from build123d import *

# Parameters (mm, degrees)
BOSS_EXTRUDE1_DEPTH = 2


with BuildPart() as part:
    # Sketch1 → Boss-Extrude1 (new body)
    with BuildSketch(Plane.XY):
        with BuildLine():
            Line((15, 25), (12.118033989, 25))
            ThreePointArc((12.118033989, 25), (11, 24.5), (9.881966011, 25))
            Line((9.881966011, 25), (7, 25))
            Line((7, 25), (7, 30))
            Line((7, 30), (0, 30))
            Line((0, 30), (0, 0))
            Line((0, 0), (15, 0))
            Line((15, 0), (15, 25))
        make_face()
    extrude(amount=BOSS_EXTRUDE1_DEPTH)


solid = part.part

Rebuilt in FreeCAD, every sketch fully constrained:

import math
import FreeCAD as App
import Part
import Sketcher

V = App.Vector
Q = App.Units.Quantity

doc = App.newDocument("Part")
body = doc.addObject("PartDesign::Body", "Body")

sketch1 = body.newObject("Sketcher::SketchObject", "Sketch")
sketch1.AttachmentSupport = (doc.getObject("XY_Plane"), [""])
sketch1.MapMode = "FlatFace"
sketch1.addGeometry(Part.LineSegment(V(15, 25, 0), V(12.118034, 25, 0)), False)
sketch1.addGeometry(Part.ArcOfCircle(Part.Circle(V(11, 26, 0), V(0, 0, 1), 1.5), math.radians(-138.189685), math.radians(-41.810315)), False)
sketch1.addGeometry(Part.LineSegment(V(9.881966, 25, 0), V(7, 25, 0)), False)
sketch1.addGeometry(Part.LineSegment(V(7, 25, 0), V(7, 30, 0)), False)
sketch1.addGeometry(Part.LineSegment(V(7, 30, 0), V(0, 30, 0)), False)
sketch1.addGeometry(Part.LineSegment(V(0, 30, 0), V(0, 0, 0)), False)
sketch1.addGeometry(Part.LineSegment(V(0, 0, 0), V(15, 0, 0)), False)
sketch1.addGeometry(Part.LineSegment(V(15, 0, 0), V(15, 25, 0)), False)
sketch1.addConstraint(Sketcher.Constraint("Coincident", 0, 2, 1, 2))
sketch1.addConstraint(Sketcher.Constraint("Coincident", 1, 1, 2, 1))
sketch1.addConstraint(Sketcher.Constraint("Coincident", 2, 2, 3, 1))
sketch1.addConstraint(Sketcher.Constraint("Coincident", 3, 2, 4, 1))
sketch1.addConstraint(Sketcher.Constraint("Coincident", 4, 2, 5, 1))
sketch1.addConstraint(Sketcher.Constraint("Coincident", 5, 2, 6, 1))
sketch1.addConstraint(Sketcher.Constraint("Coincident", 6, 2, 7, 1))
sketch1.addConstraint(Sketcher.Constraint("Coincident", 7, 2, 0, 1))
sketch1.addConstraint(Sketcher.Constraint("Horizontal", 0))
sketch1.addConstraint(Sketcher.Constraint("Horizontal", 2))
sketch1.addConstraint(Sketcher.Constraint("Vertical", 3))
sketch1.addConstraint(Sketcher.Constraint("Horizontal", 4))
sketch1.addConstraint(Sketcher.Constraint("Vertical", 5))
sketch1.addConstraint(Sketcher.Constraint("Horizontal", 6))
sketch1.addConstraint(Sketcher.Constraint("Vertical", 7))
sketch1.addConstraint(Sketcher.Constraint("Coincident", 5, 2, -1, 1))
sketch1.addConstraint(Sketcher.Constraint("Horizontal", 0, 2, 1, 1))
sketch1.addConstraint(Sketcher.Constraint("Equal", 0, 2))
sketch1.addConstraint(Sketcher.Constraint("Radius", 1, Q("1.5 mm")))
sketch1.addConstraint(Sketcher.Constraint("DistanceX", 4, 2, 4, 1, Q("7 mm")))
sketch1.addConstraint(Sketcher.Constraint("DistanceX", 6, 1, 6, 2, Q("15 mm")))
sketch1.addConstraint(Sketcher.Constraint("DistanceY", 3, 1, 3, 2, Q("5 mm")))
sketch1.addConstraint(Sketcher.Constraint("DistanceY", 5, 2, 5, 1, Q("30 mm")))
sketch1.addConstraint(Sketcher.Constraint("DistanceY", -1, 1, 1, 3, Q("26 mm")))
pad1 = body.newObject("PartDesign::Pad", "Pad")
pad1.Profile = sketch1
pad1.Length = 2

doc.recompute()
